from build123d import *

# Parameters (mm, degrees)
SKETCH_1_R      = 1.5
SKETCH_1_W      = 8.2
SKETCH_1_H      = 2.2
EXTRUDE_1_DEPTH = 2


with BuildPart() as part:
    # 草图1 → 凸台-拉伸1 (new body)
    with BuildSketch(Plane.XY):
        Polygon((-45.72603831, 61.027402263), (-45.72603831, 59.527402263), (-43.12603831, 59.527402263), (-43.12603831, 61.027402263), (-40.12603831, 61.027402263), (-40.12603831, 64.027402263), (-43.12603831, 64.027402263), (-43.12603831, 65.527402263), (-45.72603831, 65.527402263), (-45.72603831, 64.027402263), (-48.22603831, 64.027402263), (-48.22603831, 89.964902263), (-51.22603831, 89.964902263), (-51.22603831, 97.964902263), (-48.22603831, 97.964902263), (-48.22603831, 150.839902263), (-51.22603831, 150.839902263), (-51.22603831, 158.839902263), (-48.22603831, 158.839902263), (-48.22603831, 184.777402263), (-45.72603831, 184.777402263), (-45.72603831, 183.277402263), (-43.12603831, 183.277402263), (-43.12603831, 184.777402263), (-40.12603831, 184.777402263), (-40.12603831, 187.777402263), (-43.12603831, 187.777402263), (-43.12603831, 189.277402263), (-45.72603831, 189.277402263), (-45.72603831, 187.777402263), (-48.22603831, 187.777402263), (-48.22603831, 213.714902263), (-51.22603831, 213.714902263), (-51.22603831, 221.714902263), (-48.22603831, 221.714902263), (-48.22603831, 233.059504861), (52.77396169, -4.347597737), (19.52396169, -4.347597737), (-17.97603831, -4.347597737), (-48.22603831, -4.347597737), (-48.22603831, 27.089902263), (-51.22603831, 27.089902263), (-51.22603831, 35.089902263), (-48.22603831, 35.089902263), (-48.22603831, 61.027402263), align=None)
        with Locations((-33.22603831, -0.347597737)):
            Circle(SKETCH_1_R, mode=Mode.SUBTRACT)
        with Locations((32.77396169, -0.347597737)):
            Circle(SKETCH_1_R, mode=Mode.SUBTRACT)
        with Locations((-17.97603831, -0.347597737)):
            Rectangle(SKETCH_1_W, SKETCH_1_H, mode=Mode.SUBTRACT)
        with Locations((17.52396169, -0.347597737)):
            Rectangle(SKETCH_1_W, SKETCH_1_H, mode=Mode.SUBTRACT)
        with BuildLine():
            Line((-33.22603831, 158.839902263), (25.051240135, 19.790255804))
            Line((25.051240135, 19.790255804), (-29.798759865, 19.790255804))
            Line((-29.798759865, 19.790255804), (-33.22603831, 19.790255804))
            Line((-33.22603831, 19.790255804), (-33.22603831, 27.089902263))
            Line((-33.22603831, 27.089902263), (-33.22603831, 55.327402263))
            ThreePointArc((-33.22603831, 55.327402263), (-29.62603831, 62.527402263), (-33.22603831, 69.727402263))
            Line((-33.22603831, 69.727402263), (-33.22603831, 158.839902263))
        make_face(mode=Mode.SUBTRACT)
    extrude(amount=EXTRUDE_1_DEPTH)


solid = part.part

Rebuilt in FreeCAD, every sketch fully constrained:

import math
import FreeCAD as App
import Part
import Sketcher

V = App.Vector

doc = App.newDocument("Part")
body = doc.addObject("PartDesign::Body", "Body")

sketch1 = body.newObject("Sketcher::SketchObject", "Sketch")
sketch1.AttachmentSupport = (doc.getObject("XY_Plane"), [""])
sketch1.MapMode = "FlatFace"
sketch1.addGeometry(Part.LineSegment(V(-45.726038, 59.527402, 0), V(-45.726038, 61.027402, 0)), False)
sketch1.addGeometry(Part.LineSegment(V(-45.726038, 61.027402, 0), V(-48.226038, 61.027402, 0)), False)
sketch1.addGeometry(Part.LineSegment(V(-48.226038, 61.027402, 0), V(-48.226038, 35.089902, 0)), False)
sketch1.addGeometry(Part.LineSegment(V(-48.226038, 35.089902, 0), V(-51.226038, 35.089902, 0)), False)
sketch1.addGeometry(Part.LineSegment(V(-51.226038, 35.089902, 0), V(-51.226038, 27.089902, 0)), False)
sketch1.addGeometry(Part.LineSegment(V(-51.226038, 27.089902, 0), V(-48.226038, 27.089902, 0)), False)
sketch1.addGeometry(Part.LineSegment(V(-48.226038, 27.089902, 0), V(-48.226038, -4.347598, 0)), False)
sketch1.addGeometry(Part.LineSegment(V(-48.226038, -4.347598, 0), V(52.773962, -4.347598, 0)), False)
sketch1.addGeometry(Part.LineSegment(V(52.773962, -4.347598, 0), V(-48.226038, 233.059505, 0)), False)
sketch1.addGeometry(Part.LineSegment(V(-48.226038, 233.059505, 0), V(-48.226038, 221.714902, 0)), False)
sketch1.addGeometry(Part.LineSegment(V(-48.226038, 221.714902, 0), V(-51.226038, 221.714902, 0)), False)
sketch1.addGeometry(Part.LineSegment(V(-51.226038, 221.714902, 0), V(-51.226038, 213.714902, 0)), False)
sketch1.addGeometry(Part.LineSegment(V(-51.226038, 213.714902, 0), V(-48.226038, 213.714902, 0)), False)
sketch1.addGeometry(Part.LineSegment(V(-48.226038, 213.714902, 0), V(-48.226038, 187.777402, 0)), False)
sketch1.addGeometry(Part.LineSegment(V(-48.226038, 187.777402, 0), V(-45.726038, 187.777402, 0)), False)
sketch1.addGeometry(Part.LineSegment(V(-45.726038, 187.777402, 0), V(-45.726038, 189.277402, 0)), False)
sketch1.addGeometry(Part.LineSegment(V(-45.726038, 189.277402, 0), V(-43.126038, 189.277402, 0)), False)
sketch1.addGeometry(Part.LineSegment(V(-43.126038, 189.277402, 0), V(-43.126038, 187.777402, 0)), False)
sketch1.addGeometry(Part.LineSegment(V(-43.126038, 187.777402, 0), V(-40.126038, 187.777402, 0)), False)
sketch1.addGeometry(Part.LineSegment(V(-40.126038, 187.777402, 0), V(-40.126038, 184.777402, 0)), False)
sketch1.addGeometry(Part.LineSegment(V(-40.126038, 184.777402, 0), V(-43.126038, 184.777402, 0)), False)
sketch1.addGeometry(Part.LineSegment(V(-43.126038, 184.777402, 0), V(-43.126038, 183.277402, 0)), False)
sketch1.addGeometry(Part.LineSegment(V(-43.126038, 183.277402, 0), V(-45.726038, 183.277402, 0)), False)
sketch1.addGeometry(Part.LineSegment(V(-45.726038, 183.277402, 0), V(-45.726038, 184.777402, 0)), False)
sketch1.addGeometry(Part.LineSegment(V(-45.726038, 184.777402, 0), V(-48.226038, 184.777402, 0)), False)
sketch1.addGeometry(Part.LineSegment(V(-48.226038, 184.777402, 0), V(-48.226038, 158.839902, 0)), False)
sketch1.addGeometry(Part.LineSegment(V(-48.226038, 158.839902, 0), V(-51.226038, 158.839902, 0)), False)
sketch1.addGeometry(Part.LineSegment(V(-51.226038, 158.839902, 0), V(-51.226038, 150.839902, 0)), False)
sketch1.addGeometry(Part.LineSegment(V(-51.226038, 150.839902, 0), V(-48.226038, 150.839902, 0)), False)
sketch1.addGeometry(Part.LineSegment(V(-48.226038, 150.839902, 0), V(-48.226038, 97.964902, 0)), False)
sketch1.addGeometry(Part.LineSegment(V(-48.226038, 97.964902, 0), V(-51.226038, 97.964902, 0)), False)
sketch1.addGeometry(Part.LineSegment(V(-51.226038, 97.964902, 0), V(-51.226038, 89.964902, 0)), False)
sketch1.addGeometry(Part.LineSegment(V(-51.226038, 89.964902, 0), V(-48.226038, 89.964902, 0)), False)
sketch1.addGeometry(Part.LineSegment(V(-48.226038, 89.964902, 0), V(-48.226038, 64.027402, 0)), False)
sketch1.addGeometry(Part.LineSegment(V(-48.226038, 64.027402, 0), V(-45.726038, 64.027402, 0)), False)
sketch1.addGeometry(Part.LineSegment(V(-45.726038, 64.027402, 0), V(-45.726038, 65.527402, 0)), False)
sketch1.addGeometry(Part.LineSegment(V(-45.726038, 65.527402, 0), V(-43.126038, 65.527402, 0)), False)
sketch1.addGeometry(Part.LineSegment(V(-43.126038, 65.527402, 0), V(-43.126038, 64.027402, 0)), False)
sketch1.addGeometry(Part.LineSegment(V(-43.126038, 64.027402, 0), V(-40.126038, 64.027402, 0)), False)
sketch1.addGeometry(Part.LineSegment(V(-40.126038, 64.027402, 0), V(-40.126038, 61.027402, 0)), False)
sketch1.addGeometry(Part.LineSegment(V(-40.126038, 61.027402, 0), V(-43.126038, 61.027402, 0)), False)
sketch1.addGeometry(Part.LineSegment(V(-43.126038, 61.027402, 0), V(-43.126038, 59.527402, 0)), False)
sketch1.addGeometry(Part.LineSegment(V(-43.126038, 59.527402, 0), V(-45.726038, 59.527402, 0)), False)
sketch1.addGeometry(Part.Circle(V(32.773962, -0.347598, 0), V(0, 0, 1), 1.5), False)
sketch1.addGeometry(Part.LineSegment(V(13.423962, -1.447598, 0), V(13.423962, 0.752402, 0)), False)
sketch1.addGeometry(Part.LineSegment(V(13.423962, 0.752402, 0), V(21.623962, 0.752402, 0)), False)
sketch1.addGeometry(Part.LineSegment(V(21.623962, 0.752402, 0), V(21.623962, -1.447598, 0)), False)
sketch1.addGeometry(Part.LineSegment(V(21.623962, -1.447598, 0), V(13.423962, -1.447598, 0)), False)
sketch1.addGeometry(Part.LineSegment(V(-22.076038, -1.447598, 0), V(-22.076038, 0.752402, 0)), False)
sketch1.addGeometry(Part.LineSegment(V(-22.076038, 0.752402, 0), V(-13.876038, 0.752402, 0)), False)
sketch1.addGeometry(Part.LineSegment(V(-13.876038, 0.752402, 0), V(-13.876038, -1.447598, 0)), False)
sketch1.addGeometry(Part.LineSegment(V(-13.876038, -1.447598, 0), V(-22.076038, -1.447598, 0)), False)
sketch1.addGeometry(Part.Circle(V(-33.226038, -0.347598, 0), V(0, 0, 1), 1.5), False)
sketch1.addGeometry(Part.LineSegment(V(-33.226038, 158.839902, 0), V(25.05124, 19.790256, 0)), False)
sketch1.addGeometry(Part.LineSegment(V(25.05124, 19.790256, 0), V(-33.226038, 19.790256, 0)), False)
sketch1.addGeometry(Part.LineSegment(V(-33.226038, 19.790256, 0), V(-33.226038, 55.327402, 0)), False)
sketch1.addGeometry(Part.ArcOfCircle(Part.Circle(V(-38.626038, 62.527402, 0), V(0, 0, 1), 9), math.radians(-53.130102), math.radians(53.130102)), False)
sketch1.addGeometry(Part.LineSegment(V(-33.226038, 69.727402, 0), V(-33.226038, 158.839902, 0)), False)
sketch1.addConstraint(Sketcher.Constraint("Coincident", 0, 2, 1, 1))
sketch1.addConstraint(Sketcher.Constraint("Coincident", 1, 2, 2, 1))
sketch1.addConstraint(Sketcher.Constraint("Coincident", 2, 2, 3, 1))
sketch1.addConstraint(Sketcher.Constraint("Coincident", 3, 2, 4, 1))
sketch1.addConstraint(Sketcher.Constraint("Coincident", 4, 2, 5, 1))
sketch1.addConstraint(Sketcher.Constraint("Coincident", 5, 2, 6, 1))
sketch1.addConstraint(Sketcher.Constraint("Coincident", 6, 2, 7, 1))
sketch1.addConstraint(Sketcher.Constraint("Coincident", 7, 2, 8, 1))
sketch1.addConstraint(Sketcher.Constraint("Coincident", 8, 2, 9, 1))
sketch1.addConstraint(Sketcher.Constraint("Coincident", 9, 2, 10, 1))
sketch1.addConstraint(Sketcher.Constraint("Coincident", 10, 2, 11, 1))
sketch1.addConstraint(Sketcher.Constraint("Coincident", 11, 2, 12, 1))
sketch1.addConstraint(Sketcher.Constraint("Coincident", 12, 2, 13, 1))
sketch1.addConstraint(Sketcher.Constraint("Coincident", 13, 2, 14, 1))
sketch1.addConstraint(Sketcher.Constraint("Coincident", 14, 2, 15, 1))
sketch1.addConstraint(Sketcher.Constraint("Coincident", 15, 2, 16, 1))
sketch1.addConstraint(Sketcher.Constraint("Coincident", 16, 2, 17, 1))
sketch1.addConstraint(Sketcher.Constraint("Coincident", 17, 2, 18, 1))
sketch1.addConstraint(Sketcher.Constraint("Coincident", 18, 2, 19, 1))
sketch1.addConstraint(Sketcher.Constraint("Coincident", 19, 2, 20, 1))
sketch1.addConstraint(Sketcher.Constraint("Coincident", 20, 2, 21, 1))
sketch1.addConstraint(Sketcher.Constraint("Coincident", 21, 2, 22, 1))
sketch1.addConstraint(Sketcher.Constraint("Coincident", 22, 2, 23, 1))
sketch1.addConstraint(Sketcher.Constraint("Coincident", 23, 2, 24, 1))
sketch1.addConstraint(Sketcher.Constraint("Coincident", 24, 2, 25, 1))
sketch1.addConstraint(Sketcher.Constraint("Coincident", 25, 2, 26, 1))
sketch1.addConstraint(Sketcher.Constraint("Coincident", 26, 2, 27, 1))
sketch1.addConstraint(Sketcher.Constraint("Coincident", 27, 2, 28, 1))
sketch1.addConstraint(Sketcher.Constraint("Coincident", 28, 2, 29, 1))
sketch1.addConstraint(Sketcher.Constraint("Coincident", 29, 2, 30, 1))
sketch1.addConstraint(Sketcher.Constraint("Coincident", 30, 2, 31, 1))
sketch1.addConstraint(Sketcher.Constraint("Coincident", 31, 2, 32, 1))
sketch1.addConstraint(Sketcher.Constraint("Coincident", 32, 2, 33, 1))
sketch1.addConstraint(Sketcher.Constraint("Coincident", 33, 2, 34, 1))
sketch1.addConstraint(Sketcher.Constraint("Coincident", 34, 2, 35, 1))
sketch1.addConstraint(Sketcher.Constraint("Coincident", 35, 2, 36, 1))
sketch1.addConstraint(Sketcher.Constraint("Coincident", 36, 2, 37, 1))
sketch1.addConstraint(Sketcher.Constraint("Coincident", 37, 2, 38, 1))
sketch1.addConstraint(Sketcher.Constraint("Coincident", 38, 2, 39, 1))
sketch1.addConstraint(Sketcher.Constraint("Coincident", 39, 2, 40, 1))
sketch1.addConstraint(Sketcher.Constraint("Coincident", 40, 2, 41, 1))
sketch1.addConstraint(Sketcher.Constraint("Coincident", 41, 2, 42, 1))
sketch1.addConstraint(Sketcher.Constraint("Coincident", 42, 2, 0, 1))
sketch1.addConstraint(Sketcher.Constraint("Coincident", 44, 2, 45, 1))
sketch1.addConstraint(Sketcher.Constraint("Coincident", 45, 2, 46, 1))
sketch1.addConstraint(Sketcher.Constraint("Coincident", 46, 2, 47, 1))
sketch1.addConstraint(Sketcher.Constraint("Coincident", 47, 2, 44, 1))
sketch1.addConstraint(Sketcher.Constraint("Coincident", 48, 2, 49, 1))
sketch1.addConstraint(Sketcher.Constraint("Coincident", 49, 2, 50, 1))
sketch1.addConstraint(Sketcher.Constraint("Coincident", 50, 2, 51, 1))
sketch1.addConstraint(Sketcher.Constraint("Coincident", 51, 2, 48, 1))
sketch1.addConstraint(Sketcher.Constraint("Coincident", 53, 2, 54, 1))
sketch1.addConstraint(Sketcher.Constraint("Coincident", 54, 2, 55, 1))
sketch1.addConstraint(Sketcher.Constraint("Coincident", 55, 2, 56, 1))
sketch1.addConstraint(Sketcher.Constraint("Coincident", 56, 2, 57, 1))
sketch1.addConstraint(Sketcher.Constraint("Coincident", 57, 2, 53, 1))
sketch1.addConstraint(Sketcher.Constraint("Vertical", 0))
sketch1.addConstraint(Sketcher.Constraint("Horizontal", 1))
sketch1.addConstraint(Sketcher.Constraint("Vertical", 2))
sketch1.addConstraint(Sketcher.Constraint("Horizontal", 3))
sketch1.addConstraint(Sketcher.Constraint("Vertical", 4))
sketch1.addConstraint(Sketcher.Constraint("Horizontal", 5))
sketch1.addConstraint(Sketcher.Constraint("Vertical", 6))
sketch1.addConstraint(Sketcher.Constraint("Horizontal", 7))
sketch1.addConstraint(Sketcher.Constraint("Vertical", 9))
sketch1.addConstraint(Sketcher.Constraint("Horizontal", 10))
sketch1.addConstraint(Sketcher.Constraint("Vertical", 11))
sketch1.addConstraint(Sketcher.Constraint("Horizontal", 12))
sketch1.addConstraint(Sketcher.Constraint("Vertical", 13))
sketch1.addConstraint(Sketcher.Constraint("Horizontal", 14))
sketch1.addConstraint(Sketcher.Constraint("Vertical", 15))
sketch1.addConstraint(Sketcher.Constraint("Horizontal", 16))
sketch1.addConstraint(Sketcher.Constraint("Vertical", 17))
sketch1.addConstraint(Sketcher.Constraint("Horizontal", 18))
sketch1.addConstraint(Sketcher.Constraint("Vertical", 19))
sketch1.addConstraint(Sketcher.Constraint("Horizontal", 20))
sketch1.addConstraint(Sketcher.Constraint("Vertical", 21))
sketch1.addConstraint(Sketcher.Constraint("Horizontal", 22))
sketch1.addConstraint(Sketcher.Constraint("Vertical", 23))
sketch1.addConstraint(Sketcher.Constraint("Horizontal", 24))
sketch1.addConstraint(Sketcher.Constraint("Vertical", 25))
sketch1.addConstraint(Sketcher.Constraint("Horizontal", 26))
sketch1.addConstraint(Sketcher.Constraint("Vertical", 27))
sketch1.addConstraint(Sketcher.Constraint("Horizontal", 28))
sketch1.addConstraint(Sketcher.Constraint("Vertical", 29))
sketch1.addConstraint(Sketcher.Constraint("Horizontal", 30))
sketch1.addConstraint(Sketcher.Constraint("Vertical", 31))
sketch1.addConstraint(Sketcher.Constraint("Horizontal", 32))
sketch1.addConstraint(Sketcher.Constraint("Vertical", 33))
sketch1.addConstraint(Sketcher.Constraint("Horizontal", 34))
sketch1.addConstraint(Sketcher.Constraint("Vertical", 35))
sketch1.addConstraint(Sketcher.Constraint("Horizontal", 36))
sketch1.addConstraint(Sketcher.Constraint("Vertical", 37))
sketch1.addConstraint(Sketcher.Constraint("Horizontal", 38))
sketch1.addConstraint(Sketcher.Constraint("Vertical", 39))
sketch1.addConstraint(Sketcher.Constraint("Horizontal", 40))
sketch1.addConstraint(Sketcher.Constraint("Vertical", 41))
sketch1.addConstraint(Sketcher.Constraint("Horizontal", 42))
sketch1.addConstraint(Sketcher.Constraint("Vertical", 44))
sketch1.addConstraint(Sketcher.Constraint("Horizontal", 45))
sketch1.addConstraint(Sketcher.Constraint("Vertical", 46))
sketch1.addConstraint(Sketcher.Constraint("Horizontal", 47))
sketch1.addConstraint(Sketcher.Constraint("Vertical", 48))
sketch1.addConstraint(Sketcher.Constraint("Horizontal", 49))
sketch1.addConstraint(Sketcher.Constraint("Vertical", 50))
sketch1.addConstraint(Sketcher.Constraint("Horizontal", 51))
sketch1.addConstraint(Sketcher.Constraint("Horizontal", 54))
sketch1.addConstraint(Sketcher.Constraint("Vertical", 55))
sketch1.addConstraint(Sketcher.Constraint("Vertical", 57))
sketch1.addConstraint(Sketcher.Constraint("Equal", 43, 52))
sketch1.addConstraint(Sketcher.Constraint("Horizontal", 43, 3, 52, 3))
sketch1.addConstraint(Sketcher.Constraint("Horizontal", 14, 2, 17, 2))
sketch1.addConstraint(Sketcher.Constraint("Horizontal", 20, 2, 23, 2))
sketch1.addConstraint(Sketcher.Constraint("Horizontal", 34, 2, 37, 2))
sketch1.addConstraint(Sketcher.Constraint("Horizontal", 1, 2, 39, 2))
sketch1.addConstraint(Sketcher.Constraint("Horizontal", 45, 2, 48, 2))
sketch1.addConstraint(Sketcher.Constraint("Horizontal", 47, 2, 50, 2))
sketch1.addConstraint(Sketcher.Constraint("Horizontal", 26, 2, 57, 2))
sketch1.addConstraint(Sketcher.Constraint("Vertical", 2, 2, 5, 2))
sketch1.addConstraint(Sketcher.Constraint("Vertical", 6, 2, 8, 2))
sketch1.addConstraint(Sketcher.Constraint("Vertical", 4, 2, 10, 2))
sketch1.addConstraint(Sketcher.Constraint("Vertical", 9, 2, 12, 2))
sketch1.addConstraint(Sketcher.Constraint("Vertical", 0, 2, 14, 2))
sketch1.addConstraint(Sketcher.Constraint("Vertical", 17, 2, 20, 2))
sketch1.addConstraint(Sketcher.Constraint("Vertical", 15, 2, 22, 2))
sketch1.addConstraint(Sketcher.Constraint("Vertical", 13, 2, 24, 2))
sketch1.addConstraint(Sketcher.Constraint("Vertical", 11, 2, 26, 2))
sketch1.addConstraint(Sketcher.Constraint("Vertical", 25, 2, 28, 2))
sketch1.addConstraint(Sketcher.Constraint("Vertical", 27, 2, 30, 2))
sketch1.addConstraint(Sketcher.Constraint("Vertical", 29, 2, 32, 2))
sketch1.addConstraint(Sketcher.Constraint("Vertical", 23, 2, 34, 2))
sketch1.addConstraint(Sketcher.Constraint("Vertical", 21, 2, 36, 2))
sketch1.addConstraint(Sketcher.Constraint("Vertical", 19, 2, 38, 2))
sketch1.addConstraint(Sketcher.Constraint("Vertical", 37, 2, 40, 2))
sketch1.addConstraint(Sketcher.Constraint("Vertical", 52, 3, 54, 2))
sketch1.addConstraint(Sketcher.Constraint("Vertical", 55, 2, 56, 2))
sketch1.addConstraint(Sketcher.Constraint("Equal", 12, 18))
sketch1.addConstraint(Sketcher.Constraint("Equal", 47, 49))
sketch1.addConstraint(Sketcher.Constraint("Equal", 4, 11))
sketch1.addConstraint(Sketcher.Constraint("Equal", 2, 13))
sketch1.addConstraint(Sketcher.Constraint("Equal", 0, 15))
sketch1.addConstraint(Sketcher.Constraint("Equal", 40, 19))
sketch1.addConstraint(Sketcher.Constraint("Equal", 17, 21))
sketch1.addConstraint(Sketcher.Constraint("Equal", 13, 25))
sketch1.addConstraint(Sketcher.Constraint("Equal", 11, 27))
sketch1.addConstraint(Sketcher.Constraint("Equal", 27, 31))
sketch1.addConstraint(Sketcher.Constraint("Equal", 25, 33))
sketch1.addConstraint(Sketcher.Constraint("Equal", 23, 35))
sketch1.addConstraint(Sketcher.Constraint("Equal", 19, 39))
sketch1.addConstraint(Sketcher.Constraint("Diameter", 43, 3.0))
sketch1.addConstraint(Sketcher.Constraint("Radius", 56, 9.0))
sketch1.addConstraint(Sketcher.Constraint("DistanceX", 3, 2, 3, 1, 3.0))
sketch1.addConstraint(Sketcher.Constraint("DistanceX", 7, 1, 7, 2, 101.0))
sketch1.addConstraint(Sketcher.Constraint("DistanceY", 4, 2, 4, 1, 8.0))
sketch1.addConstraint(Sketcher.Constraint("DistanceX", 1, 2, 1, 1, 2.5))
sketch1.addConstraint(Sketcher.Constraint("DistanceX", 16, 1, 16, 2, 2.6))
sketch1.addConstraint(Sketcher.Constraint("DistanceX", 45, 1, 45, 2, 8.2))
sketch1.addConstraint(Sketcher.Constraint("DistanceY", 0, 1, 0, 2, 1.5))
sketch1.addConstraint(Sketcher.Constraint("DistanceY", 44, 1, 44, 2, 2.2))
sketch1.addConstraint(Sketcher.Constraint("DistanceX", 52, 3, 43, 3, 66.0))
sketch1.addConstraint(Sketcher.Constraint("DistanceX", 1, 2, 52, 3, 15.0))
sketch1.addConstraint(Sketcher.Constraint("DistanceY", 6, 2, 52, 3, 4.0))
sketch1.addConstraint(Sketcher.Constraint("DistanceY", 56, 3, 35, 2, 3.0))
sketch1.addConstraint(Sketcher.Constraint("DistanceX", 56, 3, 52, 3, 5.4))
sketch1.addConstraint(Sketcher.Constraint("DistanceY", 43, 3, 44, 2, 1.1))
sketch1.addConstraint(Sketcher.Constraint("DistanceX", 48, 2, 44, 2, 35.5))
sketch1.addConstraint(Sketcher.Constraint("DistanceY", 29, 2, 29, 1, 52.875))
sketch1.addConstraint(Sketcher.Constraint("DistanceX", 44, 2, 43, 3, 19.35))
sketch1.addConstraint(Sketcher.Constraint("DistanceY", 2, 2, 2, 1, 25.9375))
sketch1.addConstraint(Sketcher.Constraint("DistanceY", 6, 2, 6, 1, 31.4375))
sketch1.addConstraint(Sketcher.Constraint("DistanceX", 54, 2, 54, 1, 58.277278))
sketch1.addConstraint(Sketcher.Constraint("Distance", 8, 257.998319))
sketch1.addConstraint(Sketcher.Constraint("DistanceY", 55, 1, 55, 2, 35.537146))
sketch1.addConstraint(Sketcher.Constraint("DistanceX", -1, 1, 43, 3, 32.773962))
sketch1.addConstraint(Sketcher.Constraint("DistanceY", 43, 3, -1, 1, 0.347598))
pad1 = body.newObject("PartDesign::Pad", "Pad")
pad1.Profile = sketch1
pad1.Length = 2

doc.recompute()
